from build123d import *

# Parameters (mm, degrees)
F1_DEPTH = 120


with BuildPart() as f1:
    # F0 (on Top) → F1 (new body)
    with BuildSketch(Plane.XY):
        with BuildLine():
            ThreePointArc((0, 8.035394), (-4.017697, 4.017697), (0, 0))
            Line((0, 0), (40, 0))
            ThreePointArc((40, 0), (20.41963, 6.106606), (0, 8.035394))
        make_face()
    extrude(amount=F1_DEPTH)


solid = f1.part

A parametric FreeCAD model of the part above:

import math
import FreeCAD as App
import Part
import Sketcher

V = App.Vector
Q = App.Units.Quantity

doc = App.newDocument("Part")
params = doc.addObject("Spreadsheet::Sheet", "Params")
for row, (alias, value) in enumerate([
    ("sketch1_width", "40 mm"),
    ("pad1_length", "120 mm"),
], start=1):
    params.set(f"A{row}", alias)
    params.set(f"B{row}", "=" + value)
    params.setAlias(f"B{row}", alias)

body = doc.addObject("PartDesign::Body", "Body")

sketch1 = body.newObject("Sketcher::SketchObject", "Sketch")
sketch1.AttachmentSupport = (doc.getObject("XY_Plane"), [""])
sketch1.MapMode = "FlatFace"
sketch1.addGeometry([
    Part.ArcOfCircle(Part.Circle(V(0, 4, 0), V(0, 0, 1), 4), math.radians(90), math.radians(270)),
    Part.LineSegment(V(0, 0, 0), V(40, 0, 0)),
    Part.ArcOfCircle(Part.Circle(V(1, -90.7, 0), V(0, 0, 1), 98.7), math.radians(67), math.radians(91)),
], False)
sketch1.addConstraint([
    Sketcher.Constraint("Tangent", 0, 2, 1, 1),
    Sketcher.Constraint("Coincident", 1, 2, 2, 1),
    Sketcher.Constraint("Coincident", 2, 2, 0, 1),
    Sketcher.Constraint("Horizontal", 1),
    Sketcher.Constraint("Coincident", 0, 2, -1, 1),
    Sketcher.Constraint("PointOnObject", 2, 2, -2),
    Sketcher.Constraint("DistanceX", 1, 1, 1, 2, Q("40 mm")),
    Sketcher.Constraint("Radius", 2, Q("98.721831 mm")),
    Sketcher.Constraint("Radius", 0, Q("4.017697 mm")),
])
sketch1.setExpression("Constraints[6]", "Params.sketch1_width")
pad1 = body.newObject("PartDesign::Pad", "Pad")
pad1.Profile = sketch1
pad1.setExpression("Length", "Params.pad1_length")

doc.recompute()
